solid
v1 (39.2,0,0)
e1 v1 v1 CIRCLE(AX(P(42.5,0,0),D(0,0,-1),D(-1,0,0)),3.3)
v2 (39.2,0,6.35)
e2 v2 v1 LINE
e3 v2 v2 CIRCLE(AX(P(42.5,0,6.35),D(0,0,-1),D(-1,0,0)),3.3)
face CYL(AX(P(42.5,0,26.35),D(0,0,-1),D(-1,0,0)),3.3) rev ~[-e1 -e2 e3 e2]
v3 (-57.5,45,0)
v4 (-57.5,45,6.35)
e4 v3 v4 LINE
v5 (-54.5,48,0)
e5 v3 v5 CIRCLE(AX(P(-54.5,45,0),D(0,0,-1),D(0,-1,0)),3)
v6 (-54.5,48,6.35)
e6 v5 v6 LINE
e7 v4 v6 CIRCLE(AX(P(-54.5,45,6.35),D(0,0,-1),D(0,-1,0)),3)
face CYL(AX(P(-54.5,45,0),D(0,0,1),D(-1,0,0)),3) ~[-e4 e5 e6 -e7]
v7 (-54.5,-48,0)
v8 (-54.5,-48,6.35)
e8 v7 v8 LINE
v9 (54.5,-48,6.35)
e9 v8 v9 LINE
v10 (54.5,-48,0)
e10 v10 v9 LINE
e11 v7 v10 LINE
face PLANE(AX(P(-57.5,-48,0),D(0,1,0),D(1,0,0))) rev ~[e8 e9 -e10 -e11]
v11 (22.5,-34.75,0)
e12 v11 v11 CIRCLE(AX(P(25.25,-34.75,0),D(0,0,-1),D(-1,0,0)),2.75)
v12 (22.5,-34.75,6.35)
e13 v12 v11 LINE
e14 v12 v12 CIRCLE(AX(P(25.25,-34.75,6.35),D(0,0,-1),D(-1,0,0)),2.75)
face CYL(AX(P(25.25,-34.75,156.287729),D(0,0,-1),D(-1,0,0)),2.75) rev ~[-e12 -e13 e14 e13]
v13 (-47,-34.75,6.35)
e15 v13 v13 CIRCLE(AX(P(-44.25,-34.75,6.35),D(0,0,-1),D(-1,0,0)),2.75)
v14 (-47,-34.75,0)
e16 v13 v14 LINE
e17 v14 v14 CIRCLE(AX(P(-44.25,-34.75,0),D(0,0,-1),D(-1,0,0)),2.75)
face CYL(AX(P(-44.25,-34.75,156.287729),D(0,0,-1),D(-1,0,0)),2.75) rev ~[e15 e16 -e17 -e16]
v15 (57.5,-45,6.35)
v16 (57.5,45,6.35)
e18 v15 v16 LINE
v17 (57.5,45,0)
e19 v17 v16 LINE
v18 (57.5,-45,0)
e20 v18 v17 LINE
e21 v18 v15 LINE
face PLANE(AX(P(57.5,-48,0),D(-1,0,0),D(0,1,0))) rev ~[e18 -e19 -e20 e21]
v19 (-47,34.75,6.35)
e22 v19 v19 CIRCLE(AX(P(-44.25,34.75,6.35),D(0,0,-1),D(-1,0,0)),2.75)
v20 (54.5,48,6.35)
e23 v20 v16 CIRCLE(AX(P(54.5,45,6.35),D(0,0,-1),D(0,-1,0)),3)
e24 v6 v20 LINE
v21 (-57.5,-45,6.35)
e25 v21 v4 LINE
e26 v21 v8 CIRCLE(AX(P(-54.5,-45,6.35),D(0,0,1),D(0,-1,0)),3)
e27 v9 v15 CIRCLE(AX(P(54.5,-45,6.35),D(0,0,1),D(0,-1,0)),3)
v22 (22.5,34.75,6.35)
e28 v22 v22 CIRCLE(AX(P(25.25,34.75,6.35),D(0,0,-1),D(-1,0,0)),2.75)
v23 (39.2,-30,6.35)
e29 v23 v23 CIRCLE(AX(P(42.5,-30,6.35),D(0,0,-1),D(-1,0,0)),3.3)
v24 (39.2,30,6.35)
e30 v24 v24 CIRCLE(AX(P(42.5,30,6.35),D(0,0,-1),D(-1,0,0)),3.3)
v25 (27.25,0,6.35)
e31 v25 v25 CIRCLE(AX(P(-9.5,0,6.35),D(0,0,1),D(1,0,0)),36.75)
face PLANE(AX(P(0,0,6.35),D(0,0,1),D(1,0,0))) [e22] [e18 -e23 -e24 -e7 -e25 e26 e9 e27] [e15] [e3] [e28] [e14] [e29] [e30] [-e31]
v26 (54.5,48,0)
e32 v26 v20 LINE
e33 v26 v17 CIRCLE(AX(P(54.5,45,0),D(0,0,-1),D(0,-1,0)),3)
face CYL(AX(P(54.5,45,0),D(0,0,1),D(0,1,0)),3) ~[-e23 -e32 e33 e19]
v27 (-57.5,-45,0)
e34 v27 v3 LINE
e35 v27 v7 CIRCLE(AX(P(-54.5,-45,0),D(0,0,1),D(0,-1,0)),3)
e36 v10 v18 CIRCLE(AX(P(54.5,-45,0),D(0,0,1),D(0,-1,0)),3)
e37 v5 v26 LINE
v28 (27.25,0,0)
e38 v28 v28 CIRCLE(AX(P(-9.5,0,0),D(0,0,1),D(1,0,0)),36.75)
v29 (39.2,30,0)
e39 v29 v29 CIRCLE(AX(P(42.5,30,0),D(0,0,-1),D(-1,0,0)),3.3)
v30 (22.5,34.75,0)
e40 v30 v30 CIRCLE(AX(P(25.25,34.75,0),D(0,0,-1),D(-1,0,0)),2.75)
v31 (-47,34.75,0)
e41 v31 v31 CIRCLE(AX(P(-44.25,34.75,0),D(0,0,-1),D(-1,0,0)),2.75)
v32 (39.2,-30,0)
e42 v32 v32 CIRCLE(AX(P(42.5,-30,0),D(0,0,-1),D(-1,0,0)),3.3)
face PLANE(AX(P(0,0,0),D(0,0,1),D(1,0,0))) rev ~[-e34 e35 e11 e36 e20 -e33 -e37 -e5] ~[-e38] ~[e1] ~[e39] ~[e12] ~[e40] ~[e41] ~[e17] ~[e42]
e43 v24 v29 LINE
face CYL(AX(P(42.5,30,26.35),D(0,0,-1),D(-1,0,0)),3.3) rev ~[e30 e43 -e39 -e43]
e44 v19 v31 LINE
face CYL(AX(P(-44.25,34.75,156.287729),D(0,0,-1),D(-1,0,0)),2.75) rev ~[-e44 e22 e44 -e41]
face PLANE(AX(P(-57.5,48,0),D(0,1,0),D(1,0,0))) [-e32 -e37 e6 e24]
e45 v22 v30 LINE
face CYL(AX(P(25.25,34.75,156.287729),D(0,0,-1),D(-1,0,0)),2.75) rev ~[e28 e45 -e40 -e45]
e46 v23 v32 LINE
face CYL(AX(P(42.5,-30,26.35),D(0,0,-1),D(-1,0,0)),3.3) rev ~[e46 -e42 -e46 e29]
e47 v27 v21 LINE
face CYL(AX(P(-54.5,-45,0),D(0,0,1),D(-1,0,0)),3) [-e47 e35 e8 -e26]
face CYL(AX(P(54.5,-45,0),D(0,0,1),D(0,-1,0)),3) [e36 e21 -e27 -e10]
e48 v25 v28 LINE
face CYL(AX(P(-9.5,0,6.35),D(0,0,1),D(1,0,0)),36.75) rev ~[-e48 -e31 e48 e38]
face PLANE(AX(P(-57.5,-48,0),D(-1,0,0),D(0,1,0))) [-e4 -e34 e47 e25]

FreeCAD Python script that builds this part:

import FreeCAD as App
import Part
import Sketcher
from FreeCAD import Vector


def edges_at(feature, points):
    """Names of the edges that pass closest to the given points."""
    edges = feature.Shape.Edges
    near = lambda p: min(range(len(edges)), key=lambda i: edges[i].distToShape(Part.Vertex(*p))[0])
    return sorted({f"Edge{near(p) + 1}" for p in points})

doc = App.newDocument("Part")
params = doc.addObject("Spreadsheet::Sheet", "Params")
for row, (alias, value) in enumerate([
    ("sketch1_width", "115 mm"),
    ("sketch1_height", "96 mm"),
    ("pad1_length", "6.35 mm"),
    ("sketch2_diameter", "73.5 mm"),
    ("fillet_radius", "3 mm"),
    ("sketch3_diameter", "6.6 mm"),
    ("hole_diameter", "6.6 mm"),
    ("hole_depth", "20 mm"),
    ("sketch4_diameter", "5.5 mm"),
    ("hole2_diameter", "5.5 mm"),
], start=1):
    params.set(f"A{row}", alias)
    params.set(f"B{row}", "=" + value)
    params.setAlias(f"B{row}", alias)

body = doc.addObject("PartDesign::Body", "Body")

sketch1 = body.newObject("Sketcher::SketchObject", "Sketch")
sketch1.AttachmentSupport = (doc.getObject("XY_Plane"), [""])
sketch1.MapMode = "FlatFace"
sketch1.addGeometry(Part.LineSegment(Vector(-58, 48, 0), Vector(-58, -48, 0)), False)
sketch1.addGeometry(Part.LineSegment(Vector(-58, -48, 0), Vector(58, -48, 0)), False)
sketch1.addGeometry(Part.LineSegment(Vector(58, -48, 0), Vector(58, 48, 0)), False)
sketch1.addGeometry(Part.LineSegment(Vector(58, 48, 0), Vector(-58, 48, 0)), False)
sketch1.addConstraint(Sketcher.Constraint("Coincident", 0, 2, 1, 1))
sketch1.addConstraint(Sketcher.Constraint("Coincident", 1, 2, 2, 1))
sketch1.addConstraint(Sketcher.Constraint("Coincident", 2, 2, 3, 1))
sketch1.addConstraint(Sketcher.Constraint("Coincident", 3, 2, 0, 1))
sketch1.addConstraint(Sketcher.Constraint("Vertical", 0))
sketch1.addConstraint(Sketcher.Constraint("Horizontal", 1))
sketch1.addConstraint(Sketcher.Constraint("Vertical", 2))
sketch1.addConstraint(Sketcher.Constraint("Horizontal", 3))
sketch1.addConstraint(Sketcher.Constraint("Symmetric", 0, 2, 2, 2, -1, 1))
sketch1.addConstraint(Sketcher.Constraint("DistanceX", 1, 1, 1, 2, 115.0))
sketch1.addConstraint(Sketcher.Constraint("DistanceY", 0, 2, 0, 1, 96.0))
sketch1.setExpression("Constraints[9]", "Params.sketch1_width")
sketch1.setExpression("Constraints[10]", "Params.sketch1_height")
pad1 = body.newObject("PartDesign::Pad", "Pad")
pad1.Profile = sketch1
pad1.setExpression("Length", "Params.pad1_length")

sketch2 = body.newObject("Sketcher::SketchObject", "Sketch001")
sketch2.AttachmentSupport = (doc.getObject("XY_Plane"), [""])
sketch2.MapMode = "FlatFace"
sketch2.AttachmentOffset = App.Placement(Vector(0, 0, 6.35), App.Rotation())
sketch2.addGeometry(Part.Circle(Vector(-10, 0, 0), Vector(0, 0, 1), 37), False)
sketch2.addConstraint(Sketcher.Constraint("PointOnObject", 0, 3, -1))
sketch2.addConstraint(Sketcher.Constraint("Diameter", 0, 73.5))
sketch2.addConstraint(Sketcher.Constraint("DistanceX", 0, 3, -1, 1, 9.5))
sketch2.setExpression("Constraints[1]", "Params.sketch2_diameter")
pocket1 = body.newObject("PartDesign::Pocket", "Pocket")
pocket1.Profile = sketch2
pocket1.Type = "ThroughAll"
doc.recompute()

fillet = body.newObject("PartDesign::Fillet", "Fillet")
fillet.Base = (pocket1, edges_at(pocket1, [
    (57.5, -48, 3.175),
    (-57.5, -48, 3.175),
    (-57.5, 48, 3.175),
    (57.5, 48, 3.175),
]))
fillet.setExpression("Radius", "Params.fillet_radius")

sketch3 = body.newObject("Sketcher::SketchObject", "Sketch002")
sketch3.AttachmentSupport = (doc.getObject("XY_Plane"), [""])
sketch3.MapMode = "FlatFace"
sketch3.AttachmentOffset = App.Placement(Vector(0, 0, 6.35), App.Rotation())
sketch3.addGeometry(Part.Circle(Vector(42.5, 30, 0), Vector(0, 0, 1), 3.3), False)
sketch3.addGeometry(Part.Circle(Vector(42.5, 0, 0), Vector(0, 0, 1), 3.3), False)
sketch3.addGeometry(Part.Circle(Vector(42.5, -30, 0), Vector(0, 0, 1), 3.3), False)
sketch3.addConstraint(Sketcher.Constraint("Equal", 0, 1))
sketch3.addConstraint(Sketcher.Constraint("Equal", 1, 2))
sketch3.addConstraint(Sketcher.Constraint("Symmetric", 0, 3, 2, 3, -1))
sketch3.addConstraint(Sketcher.Constraint("PointOnObject", 1, 3, -1))
sketch3.addConstraint(Sketcher.Constraint("Vertical", 0, 3, 1, 3))
sketch3.addConstraint(Sketcher.Constraint("Diameter", 0, 6.6))
sketch3.addConstraint(Sketcher.Constraint("DistanceY", -1, 1, 0, 3, 30.0))
sketch3.addConstraint(Sketcher.Constraint("DistanceX", -1, 1, 0, 3, 42.5))
sketch3.setExpression("Constraints[5]", "Params.sketch3_diameter")
doc.recompute()
hole = body.newObject("PartDesign::Hole", "Hole")
hole.Profile = sketch3
hole.ThreadType = "None"
hole.setExpression("Diameter", "Params.hole_diameter")
hole.DepthType = "Dimension"
hole.setExpression("Depth", "Params.hole_depth")
hole.DrillPoint = "Angled"
hole.DrillPointAngle = 118

sketch4 = body.newObject("Sketcher::SketchObject", "Sketch003")
sketch4.AttachmentSupport = (doc.getObject("XY_Plane"), [""])
sketch4.MapMode = "FlatFace"
sketch4.AttachmentOffset = App.Placement(Vector(0, 0, 6.35), App.Rotation())
sketch4.addGeometry(Part.Circle(Vector(25.2, -34.8, 0), Vector(0, 0, 1), 2.8), False)
sketch4.addGeometry(Part.Circle(Vector(-44.2, -34.8, 0), Vector(0, 0, 1), 2.8), False)
sketch4.addGeometry(Part.Circle(Vector(-44.2, 34.8, 0), Vector(0, 0, 1), 2.8), False)
sketch4.addGeometry(Part.Circle(Vector(25.2, 34.8, 0), Vector(0, 0, 1), 2.8), False)
sketch4.addConstraint(Sketcher.Constraint("Equal", 0, 1))
sketch4.addConstraint(Sketcher.Constraint("Equal", 1, 2))
sketch4.addConstraint(Sketcher.Constraint("Equal", 2, 3))
sketch4.addConstraint(Sketcher.Constraint("Symmetric", 1, 3, 2, 3, -1))
sketch4.addConstraint(Sketcher.Constraint("Symmetric", 0, 3, 3, 3, -1))
sketch4.addConstraint(Sketcher.Constraint("Horizontal", 0, 3, 1, 3))
sketch4.addConstraint(Sketcher.Constraint("Diameter", 0, 5.5))
sketch4.addConstraint(Sketcher.Constraint("DistanceX", 1, 3, 0, 3, 69.5))
sketch4.addConstraint(Sketcher.Constraint("DistanceY", 1, 3, 2, 3, 69.5))
sketch4.addConstraint(Sketcher.Constraint("DistanceX", -1, 1, 0, 3, 25.25))
sketch4.setExpression("Constraints[6]", "Params.sketch4_diameter")
doc.recompute()
hole2 = body.newObject("PartDesign::Hole", "Hole001")
hole2.Profile = sketch4
hole2.ThreadType = "None"
hole2.setExpression("Diameter", "Params.hole2_diameter")
hole2.DepthType = "ThroughAll"

doc.recompute()
